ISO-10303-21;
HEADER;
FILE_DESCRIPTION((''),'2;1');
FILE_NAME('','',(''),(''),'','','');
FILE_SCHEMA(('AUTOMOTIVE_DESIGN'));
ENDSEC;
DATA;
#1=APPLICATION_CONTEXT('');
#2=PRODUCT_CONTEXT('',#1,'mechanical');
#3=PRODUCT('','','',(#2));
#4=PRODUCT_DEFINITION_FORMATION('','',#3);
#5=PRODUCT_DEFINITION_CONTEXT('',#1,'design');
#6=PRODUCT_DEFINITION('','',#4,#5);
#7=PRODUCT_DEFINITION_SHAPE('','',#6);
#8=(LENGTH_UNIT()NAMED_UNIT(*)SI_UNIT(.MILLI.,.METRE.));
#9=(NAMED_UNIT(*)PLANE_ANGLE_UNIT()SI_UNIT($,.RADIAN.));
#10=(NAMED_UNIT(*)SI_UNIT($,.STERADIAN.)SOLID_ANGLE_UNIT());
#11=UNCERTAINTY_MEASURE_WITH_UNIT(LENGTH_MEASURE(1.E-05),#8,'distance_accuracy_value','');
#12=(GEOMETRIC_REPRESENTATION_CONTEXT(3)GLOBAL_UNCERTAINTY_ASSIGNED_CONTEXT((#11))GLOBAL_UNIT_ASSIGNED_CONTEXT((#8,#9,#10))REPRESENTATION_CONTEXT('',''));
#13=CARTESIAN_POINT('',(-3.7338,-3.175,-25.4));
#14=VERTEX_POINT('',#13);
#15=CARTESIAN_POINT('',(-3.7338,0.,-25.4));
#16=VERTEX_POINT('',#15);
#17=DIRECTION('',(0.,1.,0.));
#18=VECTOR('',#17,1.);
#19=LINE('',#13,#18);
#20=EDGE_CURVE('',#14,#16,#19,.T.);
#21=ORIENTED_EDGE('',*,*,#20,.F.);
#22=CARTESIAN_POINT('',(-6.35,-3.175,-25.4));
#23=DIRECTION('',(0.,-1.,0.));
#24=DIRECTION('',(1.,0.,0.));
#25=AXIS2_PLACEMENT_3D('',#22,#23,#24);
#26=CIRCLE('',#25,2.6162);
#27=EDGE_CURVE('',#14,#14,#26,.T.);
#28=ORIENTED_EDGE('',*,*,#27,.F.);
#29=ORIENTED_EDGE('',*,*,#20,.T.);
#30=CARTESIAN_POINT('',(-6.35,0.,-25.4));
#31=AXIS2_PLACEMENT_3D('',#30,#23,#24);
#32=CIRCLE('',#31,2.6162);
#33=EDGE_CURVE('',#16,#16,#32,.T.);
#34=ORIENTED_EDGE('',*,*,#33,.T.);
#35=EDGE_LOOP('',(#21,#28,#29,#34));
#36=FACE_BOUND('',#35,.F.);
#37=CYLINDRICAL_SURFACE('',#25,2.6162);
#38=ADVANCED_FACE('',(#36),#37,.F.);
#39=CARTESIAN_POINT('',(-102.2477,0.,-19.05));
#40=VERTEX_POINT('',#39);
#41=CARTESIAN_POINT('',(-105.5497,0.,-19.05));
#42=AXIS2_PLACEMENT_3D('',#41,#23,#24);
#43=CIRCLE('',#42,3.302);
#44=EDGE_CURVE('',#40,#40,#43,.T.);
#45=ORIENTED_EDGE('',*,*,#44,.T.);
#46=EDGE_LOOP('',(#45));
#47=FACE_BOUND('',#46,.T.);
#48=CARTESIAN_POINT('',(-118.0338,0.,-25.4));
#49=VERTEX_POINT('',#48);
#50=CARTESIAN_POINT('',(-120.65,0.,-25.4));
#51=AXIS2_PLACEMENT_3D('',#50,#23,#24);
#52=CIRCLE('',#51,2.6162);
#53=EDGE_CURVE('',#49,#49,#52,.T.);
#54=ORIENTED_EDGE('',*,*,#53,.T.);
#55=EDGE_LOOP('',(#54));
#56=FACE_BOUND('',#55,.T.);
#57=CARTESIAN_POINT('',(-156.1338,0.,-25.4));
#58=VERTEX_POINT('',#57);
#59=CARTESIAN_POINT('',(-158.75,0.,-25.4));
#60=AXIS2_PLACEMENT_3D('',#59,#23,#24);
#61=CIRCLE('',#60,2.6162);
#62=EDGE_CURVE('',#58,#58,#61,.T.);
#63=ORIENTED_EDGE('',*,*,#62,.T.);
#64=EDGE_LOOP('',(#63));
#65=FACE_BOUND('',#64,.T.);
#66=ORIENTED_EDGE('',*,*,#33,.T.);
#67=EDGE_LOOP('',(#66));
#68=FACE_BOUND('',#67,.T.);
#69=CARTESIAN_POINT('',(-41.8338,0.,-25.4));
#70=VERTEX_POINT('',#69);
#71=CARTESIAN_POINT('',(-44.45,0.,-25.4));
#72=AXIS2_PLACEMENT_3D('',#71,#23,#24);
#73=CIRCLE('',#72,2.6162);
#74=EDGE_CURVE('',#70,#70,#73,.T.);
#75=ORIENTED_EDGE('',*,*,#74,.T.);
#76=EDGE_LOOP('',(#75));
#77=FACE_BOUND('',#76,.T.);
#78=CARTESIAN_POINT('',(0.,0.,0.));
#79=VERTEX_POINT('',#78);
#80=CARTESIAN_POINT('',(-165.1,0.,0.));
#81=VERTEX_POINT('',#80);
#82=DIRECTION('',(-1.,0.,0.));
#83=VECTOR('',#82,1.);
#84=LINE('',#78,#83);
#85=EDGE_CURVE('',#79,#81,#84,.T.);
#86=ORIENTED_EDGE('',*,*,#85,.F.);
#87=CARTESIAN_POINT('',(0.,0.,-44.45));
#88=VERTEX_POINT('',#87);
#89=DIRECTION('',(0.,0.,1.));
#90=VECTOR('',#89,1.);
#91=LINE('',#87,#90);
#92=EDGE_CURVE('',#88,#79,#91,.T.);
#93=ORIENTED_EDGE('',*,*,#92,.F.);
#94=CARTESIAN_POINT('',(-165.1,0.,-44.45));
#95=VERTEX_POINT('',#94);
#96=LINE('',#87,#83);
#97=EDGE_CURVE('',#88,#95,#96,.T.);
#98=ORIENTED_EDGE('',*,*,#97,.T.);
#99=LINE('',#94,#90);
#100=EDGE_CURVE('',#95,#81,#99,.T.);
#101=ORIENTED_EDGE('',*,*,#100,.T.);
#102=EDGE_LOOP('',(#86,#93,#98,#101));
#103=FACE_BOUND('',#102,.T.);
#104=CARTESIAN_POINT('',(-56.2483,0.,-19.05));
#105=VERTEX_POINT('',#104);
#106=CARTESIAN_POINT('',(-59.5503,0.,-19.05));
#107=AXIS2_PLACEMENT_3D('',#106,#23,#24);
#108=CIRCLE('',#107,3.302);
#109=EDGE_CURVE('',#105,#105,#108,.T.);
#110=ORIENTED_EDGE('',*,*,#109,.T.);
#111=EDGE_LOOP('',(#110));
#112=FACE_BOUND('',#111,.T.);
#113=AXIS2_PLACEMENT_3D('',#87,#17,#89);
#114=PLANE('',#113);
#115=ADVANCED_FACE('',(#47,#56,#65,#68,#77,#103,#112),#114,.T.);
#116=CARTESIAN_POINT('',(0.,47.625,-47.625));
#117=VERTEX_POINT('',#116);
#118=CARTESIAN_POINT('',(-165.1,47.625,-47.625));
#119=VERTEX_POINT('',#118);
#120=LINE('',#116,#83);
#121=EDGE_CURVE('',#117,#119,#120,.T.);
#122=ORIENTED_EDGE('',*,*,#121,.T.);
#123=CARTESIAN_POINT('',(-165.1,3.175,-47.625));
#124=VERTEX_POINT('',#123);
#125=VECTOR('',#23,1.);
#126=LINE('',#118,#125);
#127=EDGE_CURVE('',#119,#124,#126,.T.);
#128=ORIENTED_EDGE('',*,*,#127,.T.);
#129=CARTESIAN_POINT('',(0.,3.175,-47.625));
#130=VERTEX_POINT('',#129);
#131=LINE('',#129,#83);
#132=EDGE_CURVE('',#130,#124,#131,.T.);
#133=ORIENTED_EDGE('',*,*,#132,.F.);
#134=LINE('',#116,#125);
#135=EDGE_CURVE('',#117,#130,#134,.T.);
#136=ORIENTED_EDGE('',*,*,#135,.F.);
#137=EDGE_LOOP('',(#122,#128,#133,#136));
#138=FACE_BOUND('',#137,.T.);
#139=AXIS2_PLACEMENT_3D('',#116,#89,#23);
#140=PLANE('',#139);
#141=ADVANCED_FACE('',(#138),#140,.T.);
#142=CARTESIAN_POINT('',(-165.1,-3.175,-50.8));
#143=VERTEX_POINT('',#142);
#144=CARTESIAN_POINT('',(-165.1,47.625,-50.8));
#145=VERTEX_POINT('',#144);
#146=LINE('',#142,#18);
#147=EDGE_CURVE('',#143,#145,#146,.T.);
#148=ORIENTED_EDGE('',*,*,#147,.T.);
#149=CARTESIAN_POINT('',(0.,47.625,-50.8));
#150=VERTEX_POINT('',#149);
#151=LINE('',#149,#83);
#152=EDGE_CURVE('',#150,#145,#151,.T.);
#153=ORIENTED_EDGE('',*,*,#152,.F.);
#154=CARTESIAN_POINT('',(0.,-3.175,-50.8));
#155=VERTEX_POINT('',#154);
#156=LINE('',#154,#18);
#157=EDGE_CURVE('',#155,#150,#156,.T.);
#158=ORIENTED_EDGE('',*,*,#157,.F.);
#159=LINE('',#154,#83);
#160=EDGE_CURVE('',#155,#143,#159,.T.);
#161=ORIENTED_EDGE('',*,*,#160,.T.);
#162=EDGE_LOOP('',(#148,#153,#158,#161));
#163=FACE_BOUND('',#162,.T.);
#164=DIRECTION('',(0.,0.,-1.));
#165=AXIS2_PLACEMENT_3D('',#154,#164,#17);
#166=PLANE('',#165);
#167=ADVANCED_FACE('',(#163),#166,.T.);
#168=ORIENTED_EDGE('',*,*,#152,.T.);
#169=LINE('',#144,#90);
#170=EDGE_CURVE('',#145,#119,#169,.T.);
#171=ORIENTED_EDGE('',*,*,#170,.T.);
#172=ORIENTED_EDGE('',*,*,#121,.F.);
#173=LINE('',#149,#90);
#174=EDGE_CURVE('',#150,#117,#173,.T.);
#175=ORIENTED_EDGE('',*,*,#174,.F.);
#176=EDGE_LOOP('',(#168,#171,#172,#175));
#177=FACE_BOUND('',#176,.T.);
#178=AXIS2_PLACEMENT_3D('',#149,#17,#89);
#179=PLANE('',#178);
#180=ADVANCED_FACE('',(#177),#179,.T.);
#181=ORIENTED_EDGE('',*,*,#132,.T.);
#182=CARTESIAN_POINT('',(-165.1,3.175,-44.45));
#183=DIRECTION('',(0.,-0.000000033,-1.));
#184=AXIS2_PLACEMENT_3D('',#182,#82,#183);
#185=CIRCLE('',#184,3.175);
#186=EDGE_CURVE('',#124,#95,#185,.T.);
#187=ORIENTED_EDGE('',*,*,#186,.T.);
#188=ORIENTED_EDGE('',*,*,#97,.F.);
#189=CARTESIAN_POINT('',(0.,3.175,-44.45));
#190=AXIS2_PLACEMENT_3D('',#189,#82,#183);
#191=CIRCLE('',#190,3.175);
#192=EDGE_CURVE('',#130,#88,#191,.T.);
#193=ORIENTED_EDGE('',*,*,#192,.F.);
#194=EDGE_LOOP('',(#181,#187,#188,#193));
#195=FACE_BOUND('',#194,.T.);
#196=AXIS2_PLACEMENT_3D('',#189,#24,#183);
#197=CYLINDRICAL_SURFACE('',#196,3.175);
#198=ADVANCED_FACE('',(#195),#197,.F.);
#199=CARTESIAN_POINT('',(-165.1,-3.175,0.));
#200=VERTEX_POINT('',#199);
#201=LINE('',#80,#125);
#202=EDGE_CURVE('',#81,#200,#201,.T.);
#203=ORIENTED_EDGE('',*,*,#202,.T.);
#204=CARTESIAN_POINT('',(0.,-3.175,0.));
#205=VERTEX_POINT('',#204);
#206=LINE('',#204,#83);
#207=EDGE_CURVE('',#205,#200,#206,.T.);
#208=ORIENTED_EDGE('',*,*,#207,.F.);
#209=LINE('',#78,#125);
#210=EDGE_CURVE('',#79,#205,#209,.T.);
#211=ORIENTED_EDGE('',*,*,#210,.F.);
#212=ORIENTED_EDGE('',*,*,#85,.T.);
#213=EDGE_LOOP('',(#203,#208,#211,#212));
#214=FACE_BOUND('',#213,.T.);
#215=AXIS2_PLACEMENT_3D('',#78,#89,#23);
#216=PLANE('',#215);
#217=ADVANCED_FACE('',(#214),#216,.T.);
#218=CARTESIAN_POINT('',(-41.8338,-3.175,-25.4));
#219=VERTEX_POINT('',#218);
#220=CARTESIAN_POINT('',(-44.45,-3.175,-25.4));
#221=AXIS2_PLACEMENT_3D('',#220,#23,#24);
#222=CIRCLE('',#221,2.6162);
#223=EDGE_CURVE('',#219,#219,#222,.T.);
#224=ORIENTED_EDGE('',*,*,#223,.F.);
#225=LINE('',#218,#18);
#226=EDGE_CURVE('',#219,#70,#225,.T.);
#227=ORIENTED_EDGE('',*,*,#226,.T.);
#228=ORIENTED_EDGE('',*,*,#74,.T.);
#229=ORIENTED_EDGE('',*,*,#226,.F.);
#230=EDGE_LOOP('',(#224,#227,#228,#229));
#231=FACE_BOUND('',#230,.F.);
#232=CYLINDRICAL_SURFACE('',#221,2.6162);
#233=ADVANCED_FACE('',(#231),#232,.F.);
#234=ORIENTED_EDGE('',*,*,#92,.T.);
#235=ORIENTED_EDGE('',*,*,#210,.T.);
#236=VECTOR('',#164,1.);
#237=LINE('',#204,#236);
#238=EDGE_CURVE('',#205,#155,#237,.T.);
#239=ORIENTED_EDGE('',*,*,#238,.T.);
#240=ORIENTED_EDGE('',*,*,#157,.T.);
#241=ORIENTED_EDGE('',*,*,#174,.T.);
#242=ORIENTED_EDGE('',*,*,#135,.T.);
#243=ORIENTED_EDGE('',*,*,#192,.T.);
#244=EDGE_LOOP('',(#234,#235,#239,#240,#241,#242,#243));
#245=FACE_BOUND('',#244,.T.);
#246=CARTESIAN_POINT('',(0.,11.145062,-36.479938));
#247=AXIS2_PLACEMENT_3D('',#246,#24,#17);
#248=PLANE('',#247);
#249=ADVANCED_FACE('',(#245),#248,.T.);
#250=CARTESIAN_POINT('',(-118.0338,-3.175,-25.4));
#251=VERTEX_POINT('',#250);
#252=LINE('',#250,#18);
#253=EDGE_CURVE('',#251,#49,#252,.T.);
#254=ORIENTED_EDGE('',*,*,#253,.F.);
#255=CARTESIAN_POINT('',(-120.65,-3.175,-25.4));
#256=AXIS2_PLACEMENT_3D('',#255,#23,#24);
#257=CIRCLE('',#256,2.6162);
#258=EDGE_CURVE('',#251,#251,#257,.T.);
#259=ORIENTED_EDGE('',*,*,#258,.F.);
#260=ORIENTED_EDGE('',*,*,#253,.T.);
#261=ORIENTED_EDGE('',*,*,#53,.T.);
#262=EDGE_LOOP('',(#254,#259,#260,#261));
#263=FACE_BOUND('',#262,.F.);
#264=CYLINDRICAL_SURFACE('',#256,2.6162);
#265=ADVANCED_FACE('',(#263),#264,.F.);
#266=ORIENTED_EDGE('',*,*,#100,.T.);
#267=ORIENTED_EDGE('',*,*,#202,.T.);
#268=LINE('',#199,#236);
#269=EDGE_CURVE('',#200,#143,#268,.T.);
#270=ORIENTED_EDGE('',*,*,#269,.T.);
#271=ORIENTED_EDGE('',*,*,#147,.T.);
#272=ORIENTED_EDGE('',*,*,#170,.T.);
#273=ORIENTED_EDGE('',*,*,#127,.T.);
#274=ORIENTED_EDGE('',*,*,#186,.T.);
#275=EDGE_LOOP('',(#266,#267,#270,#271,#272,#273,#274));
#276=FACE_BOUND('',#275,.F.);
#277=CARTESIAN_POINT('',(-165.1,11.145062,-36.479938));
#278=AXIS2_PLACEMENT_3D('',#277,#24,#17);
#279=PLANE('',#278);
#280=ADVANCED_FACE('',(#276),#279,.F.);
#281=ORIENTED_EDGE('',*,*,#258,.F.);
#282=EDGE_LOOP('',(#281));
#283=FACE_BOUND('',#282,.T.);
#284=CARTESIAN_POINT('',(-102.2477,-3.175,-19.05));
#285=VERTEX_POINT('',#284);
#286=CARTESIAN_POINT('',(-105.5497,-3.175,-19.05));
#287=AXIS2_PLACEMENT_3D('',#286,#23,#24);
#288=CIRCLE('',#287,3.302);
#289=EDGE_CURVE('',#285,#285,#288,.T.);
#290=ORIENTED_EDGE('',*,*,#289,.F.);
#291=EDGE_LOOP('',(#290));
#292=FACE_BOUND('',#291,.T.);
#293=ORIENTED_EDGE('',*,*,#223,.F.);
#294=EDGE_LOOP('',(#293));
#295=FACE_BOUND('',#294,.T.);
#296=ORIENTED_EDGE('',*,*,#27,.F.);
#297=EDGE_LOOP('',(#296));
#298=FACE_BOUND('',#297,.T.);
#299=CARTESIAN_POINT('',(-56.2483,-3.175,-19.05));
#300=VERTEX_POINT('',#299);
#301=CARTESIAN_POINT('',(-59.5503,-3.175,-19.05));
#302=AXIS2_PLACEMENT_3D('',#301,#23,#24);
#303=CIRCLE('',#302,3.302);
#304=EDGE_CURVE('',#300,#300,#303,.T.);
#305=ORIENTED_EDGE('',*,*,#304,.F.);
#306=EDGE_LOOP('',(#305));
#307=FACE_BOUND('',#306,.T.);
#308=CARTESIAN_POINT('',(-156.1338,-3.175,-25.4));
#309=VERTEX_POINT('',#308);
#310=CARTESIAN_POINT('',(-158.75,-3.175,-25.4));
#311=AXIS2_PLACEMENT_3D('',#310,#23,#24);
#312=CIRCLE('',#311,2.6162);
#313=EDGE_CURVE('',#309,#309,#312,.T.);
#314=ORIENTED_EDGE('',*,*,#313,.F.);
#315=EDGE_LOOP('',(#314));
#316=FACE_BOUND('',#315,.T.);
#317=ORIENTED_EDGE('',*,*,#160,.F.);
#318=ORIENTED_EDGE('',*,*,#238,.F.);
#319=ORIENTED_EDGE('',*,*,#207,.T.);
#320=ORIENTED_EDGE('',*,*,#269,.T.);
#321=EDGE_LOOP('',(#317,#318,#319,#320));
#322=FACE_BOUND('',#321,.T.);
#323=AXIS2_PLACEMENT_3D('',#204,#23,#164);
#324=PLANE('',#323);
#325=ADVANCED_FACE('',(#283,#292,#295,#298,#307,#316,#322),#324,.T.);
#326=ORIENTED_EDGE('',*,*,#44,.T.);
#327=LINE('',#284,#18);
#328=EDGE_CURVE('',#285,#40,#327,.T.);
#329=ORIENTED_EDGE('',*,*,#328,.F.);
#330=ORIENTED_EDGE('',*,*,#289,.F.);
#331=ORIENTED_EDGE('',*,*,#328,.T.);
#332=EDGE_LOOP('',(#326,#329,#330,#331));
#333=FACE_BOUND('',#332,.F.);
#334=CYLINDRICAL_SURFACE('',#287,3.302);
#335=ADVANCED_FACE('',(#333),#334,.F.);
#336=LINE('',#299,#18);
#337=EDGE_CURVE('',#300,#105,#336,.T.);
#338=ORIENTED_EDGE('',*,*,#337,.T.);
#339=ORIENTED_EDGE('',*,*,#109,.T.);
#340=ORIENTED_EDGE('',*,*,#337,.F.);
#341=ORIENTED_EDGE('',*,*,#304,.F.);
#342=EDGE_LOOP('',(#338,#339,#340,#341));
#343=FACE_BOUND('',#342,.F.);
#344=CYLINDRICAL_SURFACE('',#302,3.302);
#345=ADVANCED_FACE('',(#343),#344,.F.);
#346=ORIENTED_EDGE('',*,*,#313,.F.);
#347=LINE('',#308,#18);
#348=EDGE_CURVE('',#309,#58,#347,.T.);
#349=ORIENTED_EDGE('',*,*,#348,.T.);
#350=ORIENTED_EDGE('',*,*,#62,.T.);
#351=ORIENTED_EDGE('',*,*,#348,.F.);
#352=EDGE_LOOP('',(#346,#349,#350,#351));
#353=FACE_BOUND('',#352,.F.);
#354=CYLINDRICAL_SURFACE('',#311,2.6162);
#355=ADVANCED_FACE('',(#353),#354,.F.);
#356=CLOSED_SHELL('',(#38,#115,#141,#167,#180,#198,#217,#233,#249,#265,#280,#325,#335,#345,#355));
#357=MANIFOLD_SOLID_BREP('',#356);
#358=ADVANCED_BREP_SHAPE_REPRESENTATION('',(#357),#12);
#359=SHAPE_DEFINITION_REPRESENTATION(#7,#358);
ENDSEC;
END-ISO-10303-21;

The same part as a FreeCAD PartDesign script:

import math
import FreeCAD as App
import Part
import Sketcher

V = App.Vector
Q = App.Units.Quantity

doc = App.newDocument("Part")
body = doc.addObject("PartDesign::Body", "Body")

# Sketch on YZ plane
sketch1 = doc.addObject("Sketcher::SketchObject", "Sketch")
body.addObject(sketch1)
sketch1.AttachmentSupport = (doc.YZ_Plane, [""])
sketch1.MapMode = "FlatFace"
sketch1.addGeometry(Part.LineSegment(V(0, -44.5, 0), V(0, 0, 0)), False)
sketch1.addGeometry(Part.LineSegment(V(0, 0, 0), V(-3.2, 0, 0)), False)
sketch1.addGeometry(Part.LineSegment(V(-3.2, 0, 0), V(-3.2, -50.8, 0)), False)
sketch1.addGeometry(Part.LineSegment(V(-3.2, -50.8, 0), V(47.6, -50.8, 0)), False)
sketch1.addGeometry(Part.LineSegment(V(47.6, -50.8, 0), V(47.6, -47.6, 0)), False)
sketch1.addGeometry(Part.LineSegment(V(47.6, -47.6, 0), V(3.2, -47.6, 0)), False)
sketch1.addGeometry(Part.ArcOfCircle(Part.Circle(V(3.2, -44.4, 0), V(0, 0, 1), 3.2), math.radians(-180), math.radians(-90)), False)
sketch1.addConstraint(Sketcher.Constraint("Coincident", 0, 2, 1, 1))
sketch1.addConstraint(Sketcher.Constraint("Coincident", 1, 2, 2, 1))
sketch1.addConstraint(Sketcher.Constraint("Coincident", 2, 2, 3, 1))
sketch1.addConstraint(Sketcher.Constraint("Coincident", 3, 2, 4, 1))
sketch1.addConstraint(Sketcher.Constraint("Coincident", 4, 2, 5, 1))
sketch1.addConstraint(Sketcher.Constraint("Tangent", 5, 2, 6, 2))
sketch1.addConstraint(Sketcher.Constraint("Tangent", 6, 1, 0, 1))
sketch1.addConstraint(Sketcher.Constraint("Vertical", 0))
sketch1.addConstraint(Sketcher.Constraint("Horizontal", 1))
sketch1.addConstraint(Sketcher.Constraint("Vertical", 2))
sketch1.addConstraint(Sketcher.Constraint("Horizontal", 3))
sketch1.addConstraint(Sketcher.Constraint("Vertical", 4))
sketch1.addConstraint(Sketcher.Constraint("Horizontal", 5))
sketch1.addConstraint(Sketcher.Constraint("Coincident", 0, 2, -1, 1))
sketch1.addConstraint(Sketcher.Constraint("Equal", 5, 0))
sketch1.addConstraint(Sketcher.Constraint("Equal", 3, 2))
sketch1.addConstraint(Sketcher.Constraint("DistanceX", 3, 1, 3, 2, Q("2 in")))
sketch1.addConstraint(Sketcher.Constraint("Radius", 6, Q("0.125 in")))
sketch1.addConstraint(Sketcher.Constraint("DistanceX", 5, 2, 5, 1, Q("1.75 in")))
pad1 = doc.addObject("PartDesign::Pad", "Pad")
body.addObject(pad1)
pad1.Profile = sketch1
pad1.Length = Q("6.5 in")
pad1.Reversed = True

# Sketch on XZ plane
sketch2 = doc.addObject("Sketcher::SketchObject", "Sketch001")
body.addObject(sketch2)
sketch2.AttachmentSupport = (doc.XZ_Plane, [""])
sketch2.MapMode = "FlatFace"
sketch2.AttachmentOffset = App.Placement(V(0, 0, 0.125 * 25.4), App.Rotation())
sketch2.addGeometry(Part.Circle(V(-158.8, -25.4, 0), V(0, 0, 1), 2.6), False)
sketch2.addGeometry(Part.Circle(V(-120.7, -25.4, 0), V(0, 0, 1), 2.6), False)
sketch2.addGeometry(Part.Circle(V(-44.5, -25.4, 0), V(0, 0, 1), 2.6), False)
sketch2.addGeometry(Part.Circle(V(-6.3, -25.4, 0), V(0, 0, 1), 2.6), False)
sketch2.addGeometry(Part.Circle(V(-105.5, -19.1, 0), V(0, 0, 1), 3.3), False)
sketch2.addGeometry(Part.Circle(V(-59.6, -19.1, 0), V(0, 0, 1), 3.3), False)
sketch2.addConstraint(Sketcher.Constraint("Equal", 0, 1))
sketch2.addConstraint(Sketcher.Constraint("Equal", 1, 2))
sketch2.addConstraint(Sketcher.Constraint("Equal", 2, 3))
sketch2.addConstraint(Sketcher.Constraint("Equal", 4, 5))
sketch2.addConstraint(Sketcher.Constraint("Horizontal", 0, 3, 1, 3))
sketch2.addConstraint(Sketcher.Constraint("Horizontal", 1, 3, 2, 3))
sketch2.addConstraint(Sketcher.Constraint("Horizontal", 2, 3, 3, 3))
sketch2.addConstraint(Sketcher.Constraint("Horizontal", 4, 3, 5, 3))
sketch2.addConstraint(Sketcher.Constraint("Diameter", 4, Q("0.26 in")))
sketch2.addConstraint(Sketcher.Constraint("Diameter", 0, Q("0.206 in")))
sketch2.addConstraint(Sketcher.Constraint("DistanceY", 0, 3, -1, 1, Q("1 in")))
sketch2.addConstraint(Sketcher.Constraint("DistanceX", 1, 3, 2, 3, Q("3 in")))
sketch2.addConstraint(Sketcher.Constraint("DistanceX", 0, 3, 3, 3, Q("6 in")))
sketch2.addConstraint(Sketcher.Constraint("DistanceX", 0, 3, 1, 3, Q("1.5 in")))
sketch2.addConstraint(Sketcher.Constraint("DistanceX", 0, 3, -1, 1, Q("6.25 in")))
sketch2.addConstraint(Sketcher.Constraint("DistanceY", 4, 3, -1, 1, Q("0.75 in")))
sketch2.addConstraint(Sketcher.Constraint("DistanceX", 4, 3, 5, 3, Q("1.811 in")))
sketch2.addConstraint(Sketcher.Constraint("DistanceX", 4, 3, -1, 1, Q("4.1555 in")))
pocket1 = doc.addObject("PartDesign::Pocket", "Pocket")
body.addObject(pocket1)
pocket1.Profile = sketch2
pocket1.Type = "ThroughAll"

doc.recompute()
